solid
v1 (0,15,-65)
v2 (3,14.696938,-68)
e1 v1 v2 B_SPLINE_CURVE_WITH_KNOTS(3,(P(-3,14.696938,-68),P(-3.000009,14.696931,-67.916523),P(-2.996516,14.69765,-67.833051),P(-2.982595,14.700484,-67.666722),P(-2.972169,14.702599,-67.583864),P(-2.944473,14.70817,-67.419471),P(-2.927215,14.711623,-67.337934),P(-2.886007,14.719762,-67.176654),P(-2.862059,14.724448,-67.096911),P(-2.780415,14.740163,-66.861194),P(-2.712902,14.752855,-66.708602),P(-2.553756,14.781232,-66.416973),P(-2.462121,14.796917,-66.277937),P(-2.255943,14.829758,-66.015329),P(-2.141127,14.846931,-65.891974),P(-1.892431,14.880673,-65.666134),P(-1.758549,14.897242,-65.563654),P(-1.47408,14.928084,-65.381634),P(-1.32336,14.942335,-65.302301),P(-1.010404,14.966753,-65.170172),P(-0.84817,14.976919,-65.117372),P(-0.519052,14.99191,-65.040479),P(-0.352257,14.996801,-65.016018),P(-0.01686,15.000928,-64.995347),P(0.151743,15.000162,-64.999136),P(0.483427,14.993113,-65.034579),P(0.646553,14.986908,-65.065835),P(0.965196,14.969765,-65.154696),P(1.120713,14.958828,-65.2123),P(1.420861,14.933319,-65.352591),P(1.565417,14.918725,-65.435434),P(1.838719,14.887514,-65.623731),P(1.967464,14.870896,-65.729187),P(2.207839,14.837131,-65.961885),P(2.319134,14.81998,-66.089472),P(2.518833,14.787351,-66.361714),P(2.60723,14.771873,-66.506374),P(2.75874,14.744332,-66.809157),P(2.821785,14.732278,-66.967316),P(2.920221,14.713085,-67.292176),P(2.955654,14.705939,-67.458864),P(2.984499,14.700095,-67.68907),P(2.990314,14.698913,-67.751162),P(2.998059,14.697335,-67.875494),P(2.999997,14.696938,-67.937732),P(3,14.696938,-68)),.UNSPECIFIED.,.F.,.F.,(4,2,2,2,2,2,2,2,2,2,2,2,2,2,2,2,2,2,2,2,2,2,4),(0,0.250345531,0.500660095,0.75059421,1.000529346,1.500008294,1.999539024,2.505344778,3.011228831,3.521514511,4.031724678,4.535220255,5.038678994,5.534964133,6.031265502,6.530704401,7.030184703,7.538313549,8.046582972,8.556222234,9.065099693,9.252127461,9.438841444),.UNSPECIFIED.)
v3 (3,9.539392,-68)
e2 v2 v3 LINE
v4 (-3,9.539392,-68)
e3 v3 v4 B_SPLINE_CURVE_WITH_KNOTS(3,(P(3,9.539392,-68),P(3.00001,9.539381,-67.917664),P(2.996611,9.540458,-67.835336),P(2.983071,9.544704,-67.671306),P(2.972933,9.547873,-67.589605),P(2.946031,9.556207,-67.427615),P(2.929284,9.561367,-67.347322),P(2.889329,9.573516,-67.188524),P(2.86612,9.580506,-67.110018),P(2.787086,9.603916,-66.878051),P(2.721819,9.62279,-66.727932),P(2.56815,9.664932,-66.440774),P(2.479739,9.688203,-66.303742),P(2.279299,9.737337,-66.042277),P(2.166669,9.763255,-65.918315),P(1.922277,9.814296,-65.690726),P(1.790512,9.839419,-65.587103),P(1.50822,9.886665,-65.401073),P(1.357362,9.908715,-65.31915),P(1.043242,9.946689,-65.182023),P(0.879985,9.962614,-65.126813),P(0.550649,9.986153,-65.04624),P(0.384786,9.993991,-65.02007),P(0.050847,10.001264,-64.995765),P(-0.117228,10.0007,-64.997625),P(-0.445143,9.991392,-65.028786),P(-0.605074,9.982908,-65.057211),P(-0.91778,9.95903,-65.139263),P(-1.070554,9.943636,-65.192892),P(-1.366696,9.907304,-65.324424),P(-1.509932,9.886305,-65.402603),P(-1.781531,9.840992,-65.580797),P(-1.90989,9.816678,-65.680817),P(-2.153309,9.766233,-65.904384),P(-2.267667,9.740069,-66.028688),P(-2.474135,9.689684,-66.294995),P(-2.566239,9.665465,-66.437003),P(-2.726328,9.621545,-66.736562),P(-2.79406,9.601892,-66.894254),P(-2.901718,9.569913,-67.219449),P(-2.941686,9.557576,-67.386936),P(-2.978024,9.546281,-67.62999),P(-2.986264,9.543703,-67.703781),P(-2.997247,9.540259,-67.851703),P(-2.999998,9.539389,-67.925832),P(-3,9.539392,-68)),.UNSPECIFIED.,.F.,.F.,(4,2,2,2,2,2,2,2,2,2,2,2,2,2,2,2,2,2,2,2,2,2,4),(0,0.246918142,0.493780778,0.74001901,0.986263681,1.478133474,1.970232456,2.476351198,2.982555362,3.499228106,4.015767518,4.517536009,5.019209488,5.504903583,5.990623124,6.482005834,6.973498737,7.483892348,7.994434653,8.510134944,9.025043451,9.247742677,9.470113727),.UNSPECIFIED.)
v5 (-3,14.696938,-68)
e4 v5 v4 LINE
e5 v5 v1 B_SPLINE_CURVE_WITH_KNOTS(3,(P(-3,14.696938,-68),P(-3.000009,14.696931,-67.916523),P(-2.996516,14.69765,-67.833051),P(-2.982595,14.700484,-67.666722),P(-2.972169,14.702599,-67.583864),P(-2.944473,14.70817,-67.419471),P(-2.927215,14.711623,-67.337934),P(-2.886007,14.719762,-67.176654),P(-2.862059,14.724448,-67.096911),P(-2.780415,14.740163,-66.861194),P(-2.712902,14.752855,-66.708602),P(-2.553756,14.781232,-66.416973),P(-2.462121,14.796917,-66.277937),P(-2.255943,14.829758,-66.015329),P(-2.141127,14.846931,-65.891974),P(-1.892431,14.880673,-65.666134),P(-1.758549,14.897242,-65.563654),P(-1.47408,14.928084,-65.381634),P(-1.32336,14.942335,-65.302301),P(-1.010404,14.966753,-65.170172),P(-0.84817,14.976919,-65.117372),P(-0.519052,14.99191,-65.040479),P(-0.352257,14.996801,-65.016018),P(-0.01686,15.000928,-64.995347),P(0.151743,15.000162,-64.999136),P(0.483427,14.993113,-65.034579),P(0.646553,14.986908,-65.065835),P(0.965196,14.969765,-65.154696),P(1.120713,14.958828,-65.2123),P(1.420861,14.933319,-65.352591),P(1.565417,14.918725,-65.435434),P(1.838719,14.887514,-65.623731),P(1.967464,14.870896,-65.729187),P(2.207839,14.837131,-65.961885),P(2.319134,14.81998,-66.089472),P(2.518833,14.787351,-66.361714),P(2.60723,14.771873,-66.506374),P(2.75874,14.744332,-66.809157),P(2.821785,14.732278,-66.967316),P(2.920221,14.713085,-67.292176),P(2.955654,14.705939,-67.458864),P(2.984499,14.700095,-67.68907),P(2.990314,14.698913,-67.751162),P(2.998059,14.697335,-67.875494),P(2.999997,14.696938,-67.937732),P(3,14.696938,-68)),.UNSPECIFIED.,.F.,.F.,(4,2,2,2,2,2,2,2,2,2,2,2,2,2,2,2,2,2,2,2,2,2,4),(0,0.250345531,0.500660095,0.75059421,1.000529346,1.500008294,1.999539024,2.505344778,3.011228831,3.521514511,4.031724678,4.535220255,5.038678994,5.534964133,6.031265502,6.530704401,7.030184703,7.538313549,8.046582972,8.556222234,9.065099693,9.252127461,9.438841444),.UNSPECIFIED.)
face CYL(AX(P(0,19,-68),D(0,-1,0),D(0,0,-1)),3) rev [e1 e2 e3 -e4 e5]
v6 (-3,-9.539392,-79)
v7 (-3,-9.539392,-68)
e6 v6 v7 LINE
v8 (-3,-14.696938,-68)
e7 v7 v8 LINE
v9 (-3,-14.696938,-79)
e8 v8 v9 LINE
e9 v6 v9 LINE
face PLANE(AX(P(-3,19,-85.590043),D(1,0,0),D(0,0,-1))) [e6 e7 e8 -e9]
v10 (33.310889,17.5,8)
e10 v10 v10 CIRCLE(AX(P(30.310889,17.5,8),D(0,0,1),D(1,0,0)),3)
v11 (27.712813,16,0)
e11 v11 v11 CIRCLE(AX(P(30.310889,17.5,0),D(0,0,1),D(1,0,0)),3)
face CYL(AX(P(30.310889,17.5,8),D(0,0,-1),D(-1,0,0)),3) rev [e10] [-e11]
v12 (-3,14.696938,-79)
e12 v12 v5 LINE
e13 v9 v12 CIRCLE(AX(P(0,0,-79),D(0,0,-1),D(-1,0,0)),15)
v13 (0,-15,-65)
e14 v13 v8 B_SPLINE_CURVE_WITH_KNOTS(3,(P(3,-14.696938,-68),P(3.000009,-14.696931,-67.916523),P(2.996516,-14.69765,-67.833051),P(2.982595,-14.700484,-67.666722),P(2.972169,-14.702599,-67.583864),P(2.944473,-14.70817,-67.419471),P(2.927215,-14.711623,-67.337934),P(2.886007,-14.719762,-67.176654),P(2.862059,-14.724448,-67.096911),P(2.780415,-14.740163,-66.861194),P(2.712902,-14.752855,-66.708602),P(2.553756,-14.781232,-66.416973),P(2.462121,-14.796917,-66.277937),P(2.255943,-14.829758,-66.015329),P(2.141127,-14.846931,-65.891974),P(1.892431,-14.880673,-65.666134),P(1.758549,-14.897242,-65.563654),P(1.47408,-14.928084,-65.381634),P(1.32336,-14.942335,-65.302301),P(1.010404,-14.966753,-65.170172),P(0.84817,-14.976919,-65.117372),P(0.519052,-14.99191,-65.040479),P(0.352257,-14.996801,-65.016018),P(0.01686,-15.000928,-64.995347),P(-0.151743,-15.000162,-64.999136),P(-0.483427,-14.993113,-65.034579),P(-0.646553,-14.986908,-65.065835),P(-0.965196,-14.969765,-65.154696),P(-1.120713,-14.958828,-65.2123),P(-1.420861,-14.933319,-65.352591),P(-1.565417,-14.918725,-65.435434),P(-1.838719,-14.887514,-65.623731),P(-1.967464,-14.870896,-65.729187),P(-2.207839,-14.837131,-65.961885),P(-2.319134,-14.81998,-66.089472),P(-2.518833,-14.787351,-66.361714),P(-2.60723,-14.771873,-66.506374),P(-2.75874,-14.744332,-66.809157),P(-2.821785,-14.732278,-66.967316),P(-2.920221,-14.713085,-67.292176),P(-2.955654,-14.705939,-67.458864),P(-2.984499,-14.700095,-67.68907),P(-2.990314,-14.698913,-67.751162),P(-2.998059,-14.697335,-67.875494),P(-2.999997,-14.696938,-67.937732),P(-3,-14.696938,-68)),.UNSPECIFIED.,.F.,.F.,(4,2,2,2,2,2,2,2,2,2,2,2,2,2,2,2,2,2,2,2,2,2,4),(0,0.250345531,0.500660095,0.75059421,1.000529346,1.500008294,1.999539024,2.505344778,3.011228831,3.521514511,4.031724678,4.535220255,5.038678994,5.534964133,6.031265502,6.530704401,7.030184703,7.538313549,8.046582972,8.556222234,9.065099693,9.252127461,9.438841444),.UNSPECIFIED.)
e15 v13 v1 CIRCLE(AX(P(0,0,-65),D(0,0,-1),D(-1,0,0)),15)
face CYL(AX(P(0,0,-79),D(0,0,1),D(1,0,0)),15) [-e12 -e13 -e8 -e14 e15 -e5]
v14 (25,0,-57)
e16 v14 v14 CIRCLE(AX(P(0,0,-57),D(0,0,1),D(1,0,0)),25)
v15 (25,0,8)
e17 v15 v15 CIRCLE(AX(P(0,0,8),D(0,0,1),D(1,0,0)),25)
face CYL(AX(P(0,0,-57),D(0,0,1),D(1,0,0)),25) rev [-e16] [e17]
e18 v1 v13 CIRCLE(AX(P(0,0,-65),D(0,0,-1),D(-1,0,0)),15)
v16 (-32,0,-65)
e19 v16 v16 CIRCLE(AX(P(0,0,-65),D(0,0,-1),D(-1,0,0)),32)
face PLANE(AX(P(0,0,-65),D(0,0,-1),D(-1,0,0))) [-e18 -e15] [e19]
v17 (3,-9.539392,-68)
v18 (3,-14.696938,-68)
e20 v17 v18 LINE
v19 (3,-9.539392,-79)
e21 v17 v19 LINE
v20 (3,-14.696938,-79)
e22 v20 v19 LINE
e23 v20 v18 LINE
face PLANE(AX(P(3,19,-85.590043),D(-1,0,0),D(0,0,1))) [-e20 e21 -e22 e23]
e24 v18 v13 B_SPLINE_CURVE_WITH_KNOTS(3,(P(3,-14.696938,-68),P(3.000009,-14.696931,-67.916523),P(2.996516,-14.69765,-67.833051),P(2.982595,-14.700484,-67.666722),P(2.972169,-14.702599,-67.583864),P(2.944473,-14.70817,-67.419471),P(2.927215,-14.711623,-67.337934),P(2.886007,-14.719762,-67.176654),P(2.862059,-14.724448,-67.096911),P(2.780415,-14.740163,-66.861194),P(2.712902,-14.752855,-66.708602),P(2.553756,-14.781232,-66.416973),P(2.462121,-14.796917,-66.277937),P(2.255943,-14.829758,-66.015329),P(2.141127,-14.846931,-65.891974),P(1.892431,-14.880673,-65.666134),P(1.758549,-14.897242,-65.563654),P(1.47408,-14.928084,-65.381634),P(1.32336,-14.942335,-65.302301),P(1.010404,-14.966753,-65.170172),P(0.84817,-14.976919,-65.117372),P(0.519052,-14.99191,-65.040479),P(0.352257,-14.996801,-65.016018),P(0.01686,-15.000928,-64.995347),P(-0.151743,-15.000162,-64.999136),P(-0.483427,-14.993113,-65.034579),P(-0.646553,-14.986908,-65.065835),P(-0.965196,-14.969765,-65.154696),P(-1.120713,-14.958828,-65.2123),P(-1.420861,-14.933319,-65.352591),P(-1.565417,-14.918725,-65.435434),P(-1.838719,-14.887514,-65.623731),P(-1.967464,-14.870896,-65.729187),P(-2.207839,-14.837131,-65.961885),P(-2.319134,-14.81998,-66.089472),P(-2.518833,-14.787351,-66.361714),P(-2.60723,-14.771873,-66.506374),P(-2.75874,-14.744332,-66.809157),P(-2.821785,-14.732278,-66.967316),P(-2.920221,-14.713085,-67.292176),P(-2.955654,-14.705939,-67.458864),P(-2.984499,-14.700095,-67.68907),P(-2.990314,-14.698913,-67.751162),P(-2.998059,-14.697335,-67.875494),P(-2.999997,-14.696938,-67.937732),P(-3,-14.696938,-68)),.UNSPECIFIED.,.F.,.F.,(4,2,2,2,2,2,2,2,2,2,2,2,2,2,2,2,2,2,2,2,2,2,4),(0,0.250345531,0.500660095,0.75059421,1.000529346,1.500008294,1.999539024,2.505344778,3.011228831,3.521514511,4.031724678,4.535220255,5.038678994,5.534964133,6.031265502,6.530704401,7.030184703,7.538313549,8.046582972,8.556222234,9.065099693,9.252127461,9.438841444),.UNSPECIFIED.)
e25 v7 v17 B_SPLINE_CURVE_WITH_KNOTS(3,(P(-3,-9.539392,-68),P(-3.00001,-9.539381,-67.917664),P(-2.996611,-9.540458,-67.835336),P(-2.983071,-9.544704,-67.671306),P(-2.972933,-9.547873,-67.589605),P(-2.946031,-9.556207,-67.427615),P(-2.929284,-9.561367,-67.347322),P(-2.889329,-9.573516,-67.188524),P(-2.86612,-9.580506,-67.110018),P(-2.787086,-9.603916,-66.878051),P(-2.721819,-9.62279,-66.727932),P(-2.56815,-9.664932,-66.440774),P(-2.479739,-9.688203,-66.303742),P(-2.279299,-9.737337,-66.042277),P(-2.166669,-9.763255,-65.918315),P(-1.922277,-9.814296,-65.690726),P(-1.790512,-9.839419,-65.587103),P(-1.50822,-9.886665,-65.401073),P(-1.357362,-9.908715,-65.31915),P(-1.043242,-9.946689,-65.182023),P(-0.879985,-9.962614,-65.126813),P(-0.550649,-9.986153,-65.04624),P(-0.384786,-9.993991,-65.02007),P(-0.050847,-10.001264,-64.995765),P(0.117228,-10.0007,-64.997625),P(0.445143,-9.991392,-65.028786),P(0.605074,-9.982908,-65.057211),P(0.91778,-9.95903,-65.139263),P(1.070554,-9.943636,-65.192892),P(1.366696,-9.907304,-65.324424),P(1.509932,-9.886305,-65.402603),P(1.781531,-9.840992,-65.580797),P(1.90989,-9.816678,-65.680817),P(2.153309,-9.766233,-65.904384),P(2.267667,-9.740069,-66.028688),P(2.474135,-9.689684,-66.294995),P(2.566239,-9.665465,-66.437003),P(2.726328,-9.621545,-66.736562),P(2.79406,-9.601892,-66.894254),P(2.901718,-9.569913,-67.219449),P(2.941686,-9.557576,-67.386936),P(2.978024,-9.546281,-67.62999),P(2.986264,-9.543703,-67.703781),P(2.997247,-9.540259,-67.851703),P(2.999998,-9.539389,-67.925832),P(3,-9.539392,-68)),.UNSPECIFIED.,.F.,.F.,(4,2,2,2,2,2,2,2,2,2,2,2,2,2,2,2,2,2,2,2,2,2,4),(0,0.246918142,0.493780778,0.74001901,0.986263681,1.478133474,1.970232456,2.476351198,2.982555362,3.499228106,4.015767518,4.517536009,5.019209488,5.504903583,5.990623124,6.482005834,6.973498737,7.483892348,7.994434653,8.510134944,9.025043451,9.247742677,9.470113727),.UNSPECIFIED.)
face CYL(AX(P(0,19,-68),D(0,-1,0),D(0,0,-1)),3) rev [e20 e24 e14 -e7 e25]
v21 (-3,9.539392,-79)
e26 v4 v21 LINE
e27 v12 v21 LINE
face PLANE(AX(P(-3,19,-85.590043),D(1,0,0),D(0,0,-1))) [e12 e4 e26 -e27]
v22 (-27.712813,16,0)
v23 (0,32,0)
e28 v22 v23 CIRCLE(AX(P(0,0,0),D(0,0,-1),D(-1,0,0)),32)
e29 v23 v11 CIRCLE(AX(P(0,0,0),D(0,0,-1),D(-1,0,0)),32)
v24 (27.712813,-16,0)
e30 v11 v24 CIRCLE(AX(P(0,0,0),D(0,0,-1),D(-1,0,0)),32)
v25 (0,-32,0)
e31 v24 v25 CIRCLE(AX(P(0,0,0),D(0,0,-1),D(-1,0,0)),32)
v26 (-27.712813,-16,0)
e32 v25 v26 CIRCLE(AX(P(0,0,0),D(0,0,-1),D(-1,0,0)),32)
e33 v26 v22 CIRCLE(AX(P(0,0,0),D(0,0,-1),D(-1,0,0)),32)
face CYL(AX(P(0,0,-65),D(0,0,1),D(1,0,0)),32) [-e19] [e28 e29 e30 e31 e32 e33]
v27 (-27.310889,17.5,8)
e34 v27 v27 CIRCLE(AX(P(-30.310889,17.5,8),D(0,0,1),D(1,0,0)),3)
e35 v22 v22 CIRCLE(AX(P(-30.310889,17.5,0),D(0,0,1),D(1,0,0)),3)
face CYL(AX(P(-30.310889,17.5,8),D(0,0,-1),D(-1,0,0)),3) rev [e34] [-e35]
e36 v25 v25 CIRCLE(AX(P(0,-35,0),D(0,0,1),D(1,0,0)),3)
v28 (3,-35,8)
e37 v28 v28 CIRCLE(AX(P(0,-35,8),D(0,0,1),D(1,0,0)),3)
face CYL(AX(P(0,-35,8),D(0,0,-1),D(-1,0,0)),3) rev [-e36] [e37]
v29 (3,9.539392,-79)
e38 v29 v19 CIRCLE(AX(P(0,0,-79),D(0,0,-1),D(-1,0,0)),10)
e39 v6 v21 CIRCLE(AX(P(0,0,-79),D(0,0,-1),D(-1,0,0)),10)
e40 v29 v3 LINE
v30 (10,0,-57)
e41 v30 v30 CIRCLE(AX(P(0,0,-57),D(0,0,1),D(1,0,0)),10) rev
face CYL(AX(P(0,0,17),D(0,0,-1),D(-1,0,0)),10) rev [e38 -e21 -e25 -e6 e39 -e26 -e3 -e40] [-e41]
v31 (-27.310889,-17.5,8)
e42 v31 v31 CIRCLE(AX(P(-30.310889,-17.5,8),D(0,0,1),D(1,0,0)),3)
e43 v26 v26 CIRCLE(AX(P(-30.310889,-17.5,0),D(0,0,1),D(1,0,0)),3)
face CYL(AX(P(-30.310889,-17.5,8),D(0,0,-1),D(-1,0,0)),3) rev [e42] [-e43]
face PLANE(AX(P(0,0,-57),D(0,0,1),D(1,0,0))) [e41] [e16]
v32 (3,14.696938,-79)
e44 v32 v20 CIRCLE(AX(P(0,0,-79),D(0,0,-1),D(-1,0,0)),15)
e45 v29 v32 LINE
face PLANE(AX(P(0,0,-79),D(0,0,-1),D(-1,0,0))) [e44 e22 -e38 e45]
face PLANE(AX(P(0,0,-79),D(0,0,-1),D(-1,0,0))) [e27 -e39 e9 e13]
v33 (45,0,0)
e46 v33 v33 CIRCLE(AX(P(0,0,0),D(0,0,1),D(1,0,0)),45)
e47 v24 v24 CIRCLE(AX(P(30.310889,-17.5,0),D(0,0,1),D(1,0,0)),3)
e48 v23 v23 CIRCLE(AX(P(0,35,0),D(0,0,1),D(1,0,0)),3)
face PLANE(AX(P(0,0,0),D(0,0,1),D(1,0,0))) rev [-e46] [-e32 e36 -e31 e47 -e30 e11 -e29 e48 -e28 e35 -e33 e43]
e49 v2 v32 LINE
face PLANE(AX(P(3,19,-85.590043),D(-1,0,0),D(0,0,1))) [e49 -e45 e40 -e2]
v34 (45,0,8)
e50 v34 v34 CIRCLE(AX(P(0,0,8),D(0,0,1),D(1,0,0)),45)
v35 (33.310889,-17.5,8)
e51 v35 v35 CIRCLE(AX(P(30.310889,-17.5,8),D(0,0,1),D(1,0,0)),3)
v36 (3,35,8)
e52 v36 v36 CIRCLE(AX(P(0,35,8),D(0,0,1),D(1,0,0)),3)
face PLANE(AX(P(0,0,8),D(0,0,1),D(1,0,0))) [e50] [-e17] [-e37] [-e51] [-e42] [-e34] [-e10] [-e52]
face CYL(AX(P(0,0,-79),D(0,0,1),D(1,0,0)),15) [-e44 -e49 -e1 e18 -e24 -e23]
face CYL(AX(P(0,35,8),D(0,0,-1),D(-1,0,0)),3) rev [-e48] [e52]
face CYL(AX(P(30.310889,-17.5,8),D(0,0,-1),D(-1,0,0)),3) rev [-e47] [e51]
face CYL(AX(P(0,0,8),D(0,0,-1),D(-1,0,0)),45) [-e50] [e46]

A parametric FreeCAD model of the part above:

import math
import FreeCAD as App
import Part
import Sketcher

V = App.Vector
Q = App.Units.Quantity

doc = App.newDocument("Part")
body = doc.addObject("PartDesign::Body", "Body")

sketch1 = body.newObject("Sketcher::SketchObject", "Sketch")
sketch1.AttachmentSupport = (doc.getObject("XY_Plane"), [""])
sketch1.MapMode = "FlatFace"
sketch1.addGeometry(Part.Circle(V(0, 0, 0), V(0, 0, 1), 45), False)
sketch1.addGeometry(Part.Circle(V(-30.3, -17.5, 0), V(0, 0, 1), 3), False)
sketch1.addGeometry(Part.Circle(V(0, -35, 0), V(0, 0, 1), 3), False)
sketch1.addGeometry(Part.Circle(V(30.3, -17.5, 0), V(0, 0, 1), 3), False)
sketch1.addGeometry(Part.Circle(V(-30.3, 17.5, 0), V(0, 0, 1), 3), False)
sketch1.addGeometry(Part.Circle(V(30.3, 17.5, 0), V(0, 0, 1), 3), False)
sketch1.addGeometry(Part.Circle(V(0, 35, 0), V(0, 0, 1), 3), False)
sketch1.addConstraint(Sketcher.Constraint("Coincident", 0, 3, -1, 1))
sketch1.addConstraint(Sketcher.Constraint("Equal", 1, 2))
sketch1.addConstraint(Sketcher.Constraint("Equal", 2, 3))
sketch1.addConstraint(Sketcher.Constraint("Equal", 3, 4))
sketch1.addConstraint(Sketcher.Constraint("Equal", 4, 5))
sketch1.addConstraint(Sketcher.Constraint("Equal", 5, 6))
sketch1.addConstraint(Sketcher.Constraint("Symmetric", 3, 3, 4, 3, -1, 1))
sketch1.addConstraint(Sketcher.Constraint("Symmetric", 1, 3, 5, 3, -1, 1))
sketch1.addConstraint(Sketcher.Constraint("Symmetric", 2, 3, 6, 3, -1, 1))
sketch1.addConstraint(Sketcher.Constraint("Symmetric", 1, 3, 3, 3, -2))
sketch1.addConstraint(Sketcher.Constraint("PointOnObject", 2, 3, -2))
sketch1.addConstraint(Sketcher.Constraint("Diameter", 0, Q("90 mm")))
sketch1.addConstraint(Sketcher.Constraint("Diameter", 1, Q("6 mm")))
sketch1.addConstraint(Sketcher.Constraint("DistanceY", 2, 3, -1, 1, Q("35 mm")))
sketch1.addConstraint(Sketcher.Constraint("DistanceY", 1, 3, 4, 3, Q("35 mm")))
sketch1.addConstraint(Sketcher.Constraint("DistanceX", 1, 3, -1, 1, Q("30.310889 mm")))
pad1 = body.newObject("PartDesign::Pad", "Pad")
pad1.Profile = sketch1
pad1.Length = 8

sketch2 = body.newObject("Sketcher::SketchObject", "Sketch001")
sketch2.AttachmentSupport = (doc.getObject("XY_Plane"), [""])
sketch2.MapMode = "FlatFace"
sketch2.addGeometry(Part.Circle(V(0, 0, 0), V(0, 0, 1), 32), False)
sketch2.addConstraint(Sketcher.Constraint("Coincident", 0, 3, -1, 1))
sketch2.addConstraint(Sketcher.Constraint("Diameter", 0, Q("64 mm")))
pad2 = body.newObject("PartDesign::Pad", "Pad001")
pad2.Profile = sketch2
pad2.Length = 65
pad2.Reversed = True

sketch3 = body.newObject("Sketcher::SketchObject", "Sketch002")
sketch3.AttachmentSupport = (doc.getObject("XY_Plane"), [""])
sketch3.MapMode = "FlatFace"
sketch3.AttachmentOffset = App.Placement(V(0, 0, -65), App.Rotation())
sketch3.addGeometry(Part.Circle(V(0, 0, 0), V(0, 0, 1), 15), False)
sketch3.addConstraint(Sketcher.Constraint("Coincident", 0, 3, -1, 1))
sketch3.addConstraint(Sketcher.Constraint("Diameter", 0, Q("30 mm")))
pad3 = body.newObject("PartDesign::Pad", "Pad002")
pad3.Profile = sketch3
pad3.Length = 14
pad3.Reversed = True

sketch4 = body.newObject("Sketcher::SketchObject", "Sketch003")
sketch4.AttachmentSupport = (doc.getObject("XY_Plane"), [""])
sketch4.MapMode = "FlatFace"
sketch4.AttachmentOffset = App.Placement(V(0, 0, -79), App.Rotation())
sketch4.addGeometry(Part.Circle(V(0, 0, 0), V(0, 0, 1), 10), False)
sketch4.addConstraint(Sketcher.Constraint("Coincident", 0, 3, -1, 1))
sketch4.addConstraint(Sketcher.Constraint("Diameter", 0, Q("20 mm")))
pocket1 = body.newObject("PartDesign::Pocket", "Pocket")
pocket1.Profile = sketch4
pocket1.Length = 96
pocket1.Reversed = True

sketch5 = body.newObject("Sketcher::SketchObject", "Sketch004")
sketch5.AttachmentSupport = (doc.getObject("XY_Plane"), [""])
sketch5.MapMode = "FlatFace"
sketch5.AttachmentOffset = App.Placement(V(0, 0, 8), App.Rotation())
sketch5.addGeometry(Part.Circle(V(0, 0, 0), V(0, 0, 1), 25), False)
sketch5.addConstraint(Sketcher.Constraint("Coincident", 0, 3, -1, 1))
sketch5.addConstraint(Sketcher.Constraint("Diameter", 0, Q("50 mm")))
pocket2 = body.newObject("PartDesign::Pocket", "Pocket001")
pocket2.Profile = sketch5
pocket2.Length = 65

sketch6 = body.newObject("Sketcher::SketchObject", "Sketch005")
sketch6.AttachmentSupport = (doc.getObject("XZ_Plane"), [""])
sketch6.MapMode = "FlatFace"
sketch6.addGeometry(Part.LineSegment(V(3, -85.6, 0), V(-3, -85.6, 0)), False)
sketch6.addGeometry(Part.LineSegment(V(-3, -85.6, 0), V(-3, -68, 0)), False)
sketch6.addGeometry(Part.ArcOfCircle(Part.Circle(V(0, -68, 0), V(0, 0, 1), 3), math.radians(0), math.radians(180)), False)
sketch6.addGeometry(Part.LineSegment(V(3, -68, 0), V(3, -85.6, 0)), False)
sketch6.addConstraint(Sketcher.Constraint("Coincident", 0, 2, 1, 1))
sketch6.addConstraint(Sketcher.Constraint("Tangent", 1, 2, 2, 2))
sketch6.addConstraint(Sketcher.Constraint("Tangent", 2, 1, 3, 1))
sketch6.addConstraint(Sketcher.Constraint("Coincident", 3, 2, 0, 1))
sketch6.addConstraint(Sketcher.Constraint("Horizontal", 0))
sketch6.addConstraint(Sketcher.Constraint("Vertical", 1))
sketch6.addConstraint(Sketcher.Constraint("Vertical", 3))
sketch6.addConstraint(Sketcher.Constraint("PointOnObject", 2, 3, -2))
sketch6.addConstraint(Sketcher.Constraint("Radius", 2, Q("3 mm")))
sketch6.addConstraint(Sketcher.Constraint("DistanceY", 2, 3, -1, 1, Q("68 mm")))
sketch6.addConstraint(Sketcher.Constraint("DistanceY", 1, 1, 1, 2, Q("17.590043 mm")))
pocket3 = body.newObject("PartDesign::Pocket", "Pocket002")
pocket3.Profile = sketch6
pocket3.Type = "ThroughAll"
pocket3.Midplane = True

doc.recompute()
